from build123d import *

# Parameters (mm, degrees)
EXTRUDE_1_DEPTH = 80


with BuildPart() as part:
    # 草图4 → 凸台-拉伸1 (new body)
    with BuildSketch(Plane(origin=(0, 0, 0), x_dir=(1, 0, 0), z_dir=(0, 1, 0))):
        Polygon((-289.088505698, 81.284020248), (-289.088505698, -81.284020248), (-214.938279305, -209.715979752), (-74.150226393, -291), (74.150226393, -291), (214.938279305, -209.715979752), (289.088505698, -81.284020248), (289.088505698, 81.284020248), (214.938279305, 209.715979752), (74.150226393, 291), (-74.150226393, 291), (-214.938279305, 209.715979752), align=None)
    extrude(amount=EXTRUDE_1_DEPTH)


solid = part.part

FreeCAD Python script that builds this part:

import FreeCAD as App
import Part
import Sketcher

V = App.Vector
Q = App.Units.Quantity

doc = App.newDocument("Part")
body = doc.addObject("PartDesign::Body", "Body")

# Sketch on XZ plane
sketch1 = body.newObject("Sketcher::SketchObject", "Sketch")
sketch1.AttachmentSupport = (doc.getObject("XZ_Plane"), [""])
sketch1.MapMode = "FlatFace"
sketch1.addGeometry([
    Part.LineSegment(V(-289, -81, 0), V(-289, 81, 0)),  # 0
    Part.LineSegment(V(-289, 81, 0), V(-215, 210, 0)),  # 1
    Part.LineSegment(V(-215, 210, 0), V(-74, 291, 0)),  # 2
    Part.LineSegment(V(-74, 291, 0), V(74, 291, 0)),  # 3
    Part.LineSegment(V(74, 291, 0), V(215, 210, 0)),  # 4
    Part.LineSegment(V(215, 210, 0), V(289, 81, 0)),  # 5
    Part.LineSegment(V(289, 81, 0), V(289, -81, 0)),  # 6
    Part.LineSegment(V(289, -81, 0), V(215, -210, 0)),  # 7
    Part.LineSegment(V(215, -210, 0), V(74, -291, 0)),  # 8
    Part.LineSegment(V(74, -291, 0), V(-74, -291, 0)),  # 9
    Part.LineSegment(V(-74, -291, 0), V(-215, -210, 0)),  # 10
    Part.LineSegment(V(-215, -210, 0), V(-289, -81, 0)),  # 11
], False)
sketch1.addConstraint([
    Sketcher.Constraint("Coincident", 0, 2, 1, 1),
    Sketcher.Constraint("Coincident", 1, 2, 2, 1),
    Sketcher.Constraint("Coincident", 2, 2, 3, 1),
    Sketcher.Constraint("Coincident", 3, 2, 4, 1),
    Sketcher.Constraint("Coincident", 4, 2, 5, 1),
    Sketcher.Constraint("Coincident", 5, 2, 6, 1),
    Sketcher.Constraint("Coincident", 6, 2, 7, 1),
    Sketcher.Constraint("Coincident", 7, 2, 8, 1),
    Sketcher.Constraint("Coincident", 8, 2, 9, 1),
    Sketcher.Constraint("Coincident", 9, 2, 10, 1),
    Sketcher.Constraint("Coincident", 10, 2, 11, 1),
    Sketcher.Constraint("Coincident", 11, 2, 0, 1),
    Sketcher.Constraint("Vertical", 0),
    Sketcher.Constraint("Horizontal", 3),
    Sketcher.Constraint("Vertical", 6),
    Sketcher.Constraint("Horizontal", 9),
    Sketcher.Constraint("Symmetric", 0, 2, 6, 2, -1, 1),
    Sketcher.Constraint("Symmetric", 1, 2, 7, 2, -1, 1),
    Sketcher.Constraint("Symmetric", 2, 2, 8, 2, -1, 1),
    Sketcher.Constraint("Symmetric", 4, 2, 10, 2, -1, 1),
    Sketcher.Constraint("Symmetric", 1, 2, 4, 2, -2),
    Sketcher.Constraint("Perpendicular", 1, 4),
    Sketcher.Constraint("Perpendicular", 2, 5),
    Sketcher.Constraint("Perpendicular", 7, 10),
    Sketcher.Constraint("Perpendicular", 8, 11),
    Sketcher.Constraint("Horizontal", 0, 2, 5, 2),
    Sketcher.Constraint("Angle", 1, Q("60 deg")),
    Sketcher.Constraint("DistanceY", -1, 1, 2, 2, 291.0),
    Sketcher.Constraint("DistanceY", 6, 2, 4, 2, 291.0),
    Sketcher.Constraint("DistanceY", 0, 1, 0, 2, 162.56804),
    Sketcher.Constraint("DistanceX", 3, 1, 3, 2, 148.300453),
])
pad1 = body.newObject("PartDesign::Pad", "Pad")
pad1.Profile = sketch1
pad1.Length = 80
pad1.Reversed = True

doc.recompute()
